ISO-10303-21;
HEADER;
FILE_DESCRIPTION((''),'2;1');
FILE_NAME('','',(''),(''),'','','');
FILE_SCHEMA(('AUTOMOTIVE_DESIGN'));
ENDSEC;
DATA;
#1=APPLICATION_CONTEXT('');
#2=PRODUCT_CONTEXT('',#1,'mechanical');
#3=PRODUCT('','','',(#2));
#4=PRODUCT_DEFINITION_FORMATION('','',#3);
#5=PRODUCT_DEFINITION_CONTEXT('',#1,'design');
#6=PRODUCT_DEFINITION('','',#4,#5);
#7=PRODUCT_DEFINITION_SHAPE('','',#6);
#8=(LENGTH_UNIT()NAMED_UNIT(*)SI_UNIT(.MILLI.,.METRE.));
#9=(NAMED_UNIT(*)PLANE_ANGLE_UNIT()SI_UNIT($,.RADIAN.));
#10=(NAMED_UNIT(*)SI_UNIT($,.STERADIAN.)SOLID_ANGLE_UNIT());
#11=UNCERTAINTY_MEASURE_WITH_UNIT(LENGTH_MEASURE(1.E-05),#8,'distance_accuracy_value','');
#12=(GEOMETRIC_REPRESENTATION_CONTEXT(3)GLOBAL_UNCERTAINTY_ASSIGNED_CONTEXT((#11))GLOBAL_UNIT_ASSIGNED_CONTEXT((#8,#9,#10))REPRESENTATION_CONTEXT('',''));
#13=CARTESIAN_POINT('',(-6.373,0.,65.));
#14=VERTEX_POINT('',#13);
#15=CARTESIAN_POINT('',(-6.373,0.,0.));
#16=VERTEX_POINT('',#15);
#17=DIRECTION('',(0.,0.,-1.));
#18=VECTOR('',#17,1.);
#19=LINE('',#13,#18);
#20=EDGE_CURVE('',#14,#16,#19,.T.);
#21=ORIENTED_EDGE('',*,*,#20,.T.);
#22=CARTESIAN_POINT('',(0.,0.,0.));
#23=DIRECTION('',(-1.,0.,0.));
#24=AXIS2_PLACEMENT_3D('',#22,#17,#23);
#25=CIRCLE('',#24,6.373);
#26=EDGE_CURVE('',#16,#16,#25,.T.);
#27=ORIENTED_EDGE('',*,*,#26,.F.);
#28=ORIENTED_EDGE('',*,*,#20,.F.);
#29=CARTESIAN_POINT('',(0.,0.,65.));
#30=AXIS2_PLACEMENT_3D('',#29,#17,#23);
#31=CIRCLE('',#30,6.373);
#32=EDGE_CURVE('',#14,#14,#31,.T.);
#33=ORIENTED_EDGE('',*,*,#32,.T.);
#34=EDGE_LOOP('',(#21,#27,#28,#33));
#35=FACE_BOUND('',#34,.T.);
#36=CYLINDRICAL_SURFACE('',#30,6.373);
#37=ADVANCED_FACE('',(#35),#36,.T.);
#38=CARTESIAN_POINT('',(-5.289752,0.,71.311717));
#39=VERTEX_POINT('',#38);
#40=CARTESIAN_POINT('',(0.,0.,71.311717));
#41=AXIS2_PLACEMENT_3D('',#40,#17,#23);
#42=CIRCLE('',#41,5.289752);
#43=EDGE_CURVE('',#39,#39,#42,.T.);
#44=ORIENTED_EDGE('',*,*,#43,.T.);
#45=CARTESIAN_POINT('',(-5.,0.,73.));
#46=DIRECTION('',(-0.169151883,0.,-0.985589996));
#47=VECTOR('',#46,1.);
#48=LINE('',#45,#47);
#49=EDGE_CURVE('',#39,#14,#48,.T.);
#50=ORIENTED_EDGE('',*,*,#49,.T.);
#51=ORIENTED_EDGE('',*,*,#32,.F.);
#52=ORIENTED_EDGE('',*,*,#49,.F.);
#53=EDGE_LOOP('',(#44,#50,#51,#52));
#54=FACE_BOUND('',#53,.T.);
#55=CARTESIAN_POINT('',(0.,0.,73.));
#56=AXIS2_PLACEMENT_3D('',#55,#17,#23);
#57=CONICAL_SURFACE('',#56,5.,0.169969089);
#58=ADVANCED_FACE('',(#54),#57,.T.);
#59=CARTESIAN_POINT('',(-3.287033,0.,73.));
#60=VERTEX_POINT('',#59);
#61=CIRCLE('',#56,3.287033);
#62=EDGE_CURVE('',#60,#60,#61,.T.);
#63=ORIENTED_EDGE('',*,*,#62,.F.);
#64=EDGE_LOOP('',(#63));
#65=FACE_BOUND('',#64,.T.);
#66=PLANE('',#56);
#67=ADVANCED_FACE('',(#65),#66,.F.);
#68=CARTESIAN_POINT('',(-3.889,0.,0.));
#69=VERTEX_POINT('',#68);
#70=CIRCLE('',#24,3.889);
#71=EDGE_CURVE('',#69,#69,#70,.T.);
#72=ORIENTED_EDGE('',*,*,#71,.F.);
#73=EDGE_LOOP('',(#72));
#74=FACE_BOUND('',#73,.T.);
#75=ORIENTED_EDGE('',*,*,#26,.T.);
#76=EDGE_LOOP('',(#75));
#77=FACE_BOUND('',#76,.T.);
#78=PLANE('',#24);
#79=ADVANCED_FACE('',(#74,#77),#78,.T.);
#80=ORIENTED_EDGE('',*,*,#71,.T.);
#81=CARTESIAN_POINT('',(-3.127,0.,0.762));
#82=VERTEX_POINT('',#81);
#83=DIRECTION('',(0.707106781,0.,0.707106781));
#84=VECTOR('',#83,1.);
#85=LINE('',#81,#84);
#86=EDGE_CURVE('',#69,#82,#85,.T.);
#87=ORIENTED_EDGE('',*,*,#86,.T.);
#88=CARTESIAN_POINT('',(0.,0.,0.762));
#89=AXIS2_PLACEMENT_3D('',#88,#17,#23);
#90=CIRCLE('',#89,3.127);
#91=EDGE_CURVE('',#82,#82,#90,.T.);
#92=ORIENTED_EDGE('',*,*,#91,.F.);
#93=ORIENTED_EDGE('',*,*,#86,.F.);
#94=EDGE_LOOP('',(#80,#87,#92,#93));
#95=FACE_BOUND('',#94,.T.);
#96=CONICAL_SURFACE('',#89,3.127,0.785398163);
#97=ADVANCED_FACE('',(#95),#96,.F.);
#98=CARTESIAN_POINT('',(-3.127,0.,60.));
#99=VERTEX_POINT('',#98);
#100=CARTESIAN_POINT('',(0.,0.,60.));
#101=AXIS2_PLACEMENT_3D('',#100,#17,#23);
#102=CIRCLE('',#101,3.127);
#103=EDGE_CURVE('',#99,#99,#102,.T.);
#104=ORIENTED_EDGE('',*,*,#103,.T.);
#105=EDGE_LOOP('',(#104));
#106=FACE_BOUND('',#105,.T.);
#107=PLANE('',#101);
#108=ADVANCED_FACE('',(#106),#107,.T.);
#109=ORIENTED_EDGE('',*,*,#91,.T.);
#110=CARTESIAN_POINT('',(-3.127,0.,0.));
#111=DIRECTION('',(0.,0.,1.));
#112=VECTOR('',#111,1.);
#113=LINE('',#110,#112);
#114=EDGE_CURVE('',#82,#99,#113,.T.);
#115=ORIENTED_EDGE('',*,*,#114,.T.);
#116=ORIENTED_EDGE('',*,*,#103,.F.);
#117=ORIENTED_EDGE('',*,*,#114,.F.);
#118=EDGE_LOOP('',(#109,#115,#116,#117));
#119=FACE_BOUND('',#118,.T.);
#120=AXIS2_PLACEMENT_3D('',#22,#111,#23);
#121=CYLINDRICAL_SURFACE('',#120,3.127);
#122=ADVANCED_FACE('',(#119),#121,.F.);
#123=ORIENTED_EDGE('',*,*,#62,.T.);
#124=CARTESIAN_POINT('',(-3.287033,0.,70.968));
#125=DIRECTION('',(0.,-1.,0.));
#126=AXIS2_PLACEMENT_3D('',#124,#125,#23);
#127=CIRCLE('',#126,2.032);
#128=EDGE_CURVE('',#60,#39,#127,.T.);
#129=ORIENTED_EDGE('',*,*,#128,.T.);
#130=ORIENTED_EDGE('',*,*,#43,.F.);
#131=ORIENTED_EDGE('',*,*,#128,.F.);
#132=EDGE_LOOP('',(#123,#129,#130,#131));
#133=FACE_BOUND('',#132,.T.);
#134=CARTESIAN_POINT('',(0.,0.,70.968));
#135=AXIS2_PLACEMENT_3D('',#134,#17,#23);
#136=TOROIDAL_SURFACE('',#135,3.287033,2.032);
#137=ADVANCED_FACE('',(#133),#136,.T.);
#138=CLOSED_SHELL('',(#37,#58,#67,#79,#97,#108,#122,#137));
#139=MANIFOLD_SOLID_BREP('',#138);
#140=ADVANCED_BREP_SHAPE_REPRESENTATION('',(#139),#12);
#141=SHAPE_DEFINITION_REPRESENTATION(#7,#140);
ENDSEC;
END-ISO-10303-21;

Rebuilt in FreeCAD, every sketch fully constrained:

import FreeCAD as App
import Part
import Sketcher


def edges_at(feature, points):
    """Names of the edges that pass closest to the given points."""
    edges = feature.Shape.Edges
    near = lambda p: min(range(len(edges)), key=lambda i: edges[i].distToShape(Part.Vertex(*p))[0])
    return sorted({f"Edge{near(p) + 1}" for p in points})


def add_polygon(sketch, points):
    """Adds a closed chain of lines whose ends are joined by coincident constraints."""
    first, n = sketch.GeometryCount, len(points)
    for a, b in zip(points, points[1:] + points[:1]):
        sketch.addGeometry(Part.LineSegment(App.Vector(*a, 0), App.Vector(*b, 0)), False)
    for i in range(n):
        sketch.addConstraint(Sketcher.Constraint("Coincident", first + i, 2, first + (i + 1) % n, 1))

doc = App.newDocument("Part")
params = doc.addObject("Spreadsheet::Sheet", "Params")
for row, (alias, value) in enumerate([
    ("sketch1_width", "5 mm"),
    ("sketch1_height", "65 mm"),
    ("sketch1_height2", "60 mm"),
    ("sketch1_height3", "13 mm"),
    ("revolution_angle", "360 deg"),
    ("fillet_radius", "2.032 mm"),
    ("chamfer_size", "0.762 mm"),
], start=1):
    params.set(f"A{row}", alias)
    params.set(f"B{row}", "=" + value)
    params.setAlias(f"B{row}", alias)

body = doc.addObject("PartDesign::Body", "Body")

sketch1 = doc.addObject("Sketcher::SketchObject", "Sketch")
body.addObject(sketch1)
sketch1.AttachmentSupport = (doc.XZ_Plane, [""])
sketch1.MapMode = "FlatFace"
add_polygon(sketch1, [(-6.373, 65), (-6.373, 0), (-3.127, 0), (-3.127, 60), (0, 60), (0, 73), (-5, 73)])
sketch1.addConstraint(Sketcher.Constraint("Vertical", 0))
sketch1.addConstraint(Sketcher.Constraint("Horizontal", 1))
sketch1.addConstraint(Sketcher.Constraint("Vertical", 2))
sketch1.addConstraint(Sketcher.Constraint("Horizontal", 3))
sketch1.addConstraint(Sketcher.Constraint("Vertical", 4))
sketch1.addConstraint(Sketcher.Constraint("Horizontal", 5))
sketch1.addConstraint(Sketcher.Constraint("PointOnObject", 0, 2, -1))
sketch1.addConstraint(Sketcher.Constraint("PointOnObject", 3, 2, -2))
sketch1.addConstraint(Sketcher.Constraint("DistanceX", 5, 2, 5, 1, 5.0))
sketch1.addConstraint(Sketcher.Constraint("DistanceY", 0, 2, 0, 1, 65.0))
sketch1.addConstraint(Sketcher.Constraint("DistanceY", 2, 1, 2, 2, 60.0))
sketch1.addConstraint(Sketcher.Constraint("DistanceY", 4, 1, 4, 2, 13.0))
sketch1.addConstraint(Sketcher.Constraint("DistanceX", 1, 1, 1, 2, 3.246))
sketch1.addConstraint(Sketcher.Constraint("DistanceX", 3, 1, 3, 2, 3.127))
sketch1.setExpression("Constraints[15]", "Params.sketch1_width")
sketch1.setExpression("Constraints[16]", "Params.sketch1_height")
sketch1.setExpression("Constraints[17]", "Params.sketch1_height2")
sketch1.setExpression("Constraints[18]", "Params.sketch1_height3")
revolution = doc.addObject("PartDesign::Revolution", "Revolution")
body.addObject(revolution)
revolution.Profile = sketch1
revolution.ReferenceAxis = (sketch1, ["V_Axis"])
revolution.setExpression("Angle", "Params.revolution_angle")
doc.recompute()

fillet = doc.addObject("PartDesign::Fillet", "Fillet")
body.addObject(fillet)
fillet.Base = (revolution, edges_at(revolution, [(5, 0, 73)]))
fillet.setExpression("Radius", "Params.fillet_radius")
doc.recompute()

chamfer = doc.addObject("PartDesign::Chamfer", "Chamfer")
body.addObject(chamfer)
chamfer.Base = (fillet, edges_at(fillet, [(3.127, 0, 0)]))
chamfer.setExpression("Size", "Params.chamfer_size")

doc.recompute()
